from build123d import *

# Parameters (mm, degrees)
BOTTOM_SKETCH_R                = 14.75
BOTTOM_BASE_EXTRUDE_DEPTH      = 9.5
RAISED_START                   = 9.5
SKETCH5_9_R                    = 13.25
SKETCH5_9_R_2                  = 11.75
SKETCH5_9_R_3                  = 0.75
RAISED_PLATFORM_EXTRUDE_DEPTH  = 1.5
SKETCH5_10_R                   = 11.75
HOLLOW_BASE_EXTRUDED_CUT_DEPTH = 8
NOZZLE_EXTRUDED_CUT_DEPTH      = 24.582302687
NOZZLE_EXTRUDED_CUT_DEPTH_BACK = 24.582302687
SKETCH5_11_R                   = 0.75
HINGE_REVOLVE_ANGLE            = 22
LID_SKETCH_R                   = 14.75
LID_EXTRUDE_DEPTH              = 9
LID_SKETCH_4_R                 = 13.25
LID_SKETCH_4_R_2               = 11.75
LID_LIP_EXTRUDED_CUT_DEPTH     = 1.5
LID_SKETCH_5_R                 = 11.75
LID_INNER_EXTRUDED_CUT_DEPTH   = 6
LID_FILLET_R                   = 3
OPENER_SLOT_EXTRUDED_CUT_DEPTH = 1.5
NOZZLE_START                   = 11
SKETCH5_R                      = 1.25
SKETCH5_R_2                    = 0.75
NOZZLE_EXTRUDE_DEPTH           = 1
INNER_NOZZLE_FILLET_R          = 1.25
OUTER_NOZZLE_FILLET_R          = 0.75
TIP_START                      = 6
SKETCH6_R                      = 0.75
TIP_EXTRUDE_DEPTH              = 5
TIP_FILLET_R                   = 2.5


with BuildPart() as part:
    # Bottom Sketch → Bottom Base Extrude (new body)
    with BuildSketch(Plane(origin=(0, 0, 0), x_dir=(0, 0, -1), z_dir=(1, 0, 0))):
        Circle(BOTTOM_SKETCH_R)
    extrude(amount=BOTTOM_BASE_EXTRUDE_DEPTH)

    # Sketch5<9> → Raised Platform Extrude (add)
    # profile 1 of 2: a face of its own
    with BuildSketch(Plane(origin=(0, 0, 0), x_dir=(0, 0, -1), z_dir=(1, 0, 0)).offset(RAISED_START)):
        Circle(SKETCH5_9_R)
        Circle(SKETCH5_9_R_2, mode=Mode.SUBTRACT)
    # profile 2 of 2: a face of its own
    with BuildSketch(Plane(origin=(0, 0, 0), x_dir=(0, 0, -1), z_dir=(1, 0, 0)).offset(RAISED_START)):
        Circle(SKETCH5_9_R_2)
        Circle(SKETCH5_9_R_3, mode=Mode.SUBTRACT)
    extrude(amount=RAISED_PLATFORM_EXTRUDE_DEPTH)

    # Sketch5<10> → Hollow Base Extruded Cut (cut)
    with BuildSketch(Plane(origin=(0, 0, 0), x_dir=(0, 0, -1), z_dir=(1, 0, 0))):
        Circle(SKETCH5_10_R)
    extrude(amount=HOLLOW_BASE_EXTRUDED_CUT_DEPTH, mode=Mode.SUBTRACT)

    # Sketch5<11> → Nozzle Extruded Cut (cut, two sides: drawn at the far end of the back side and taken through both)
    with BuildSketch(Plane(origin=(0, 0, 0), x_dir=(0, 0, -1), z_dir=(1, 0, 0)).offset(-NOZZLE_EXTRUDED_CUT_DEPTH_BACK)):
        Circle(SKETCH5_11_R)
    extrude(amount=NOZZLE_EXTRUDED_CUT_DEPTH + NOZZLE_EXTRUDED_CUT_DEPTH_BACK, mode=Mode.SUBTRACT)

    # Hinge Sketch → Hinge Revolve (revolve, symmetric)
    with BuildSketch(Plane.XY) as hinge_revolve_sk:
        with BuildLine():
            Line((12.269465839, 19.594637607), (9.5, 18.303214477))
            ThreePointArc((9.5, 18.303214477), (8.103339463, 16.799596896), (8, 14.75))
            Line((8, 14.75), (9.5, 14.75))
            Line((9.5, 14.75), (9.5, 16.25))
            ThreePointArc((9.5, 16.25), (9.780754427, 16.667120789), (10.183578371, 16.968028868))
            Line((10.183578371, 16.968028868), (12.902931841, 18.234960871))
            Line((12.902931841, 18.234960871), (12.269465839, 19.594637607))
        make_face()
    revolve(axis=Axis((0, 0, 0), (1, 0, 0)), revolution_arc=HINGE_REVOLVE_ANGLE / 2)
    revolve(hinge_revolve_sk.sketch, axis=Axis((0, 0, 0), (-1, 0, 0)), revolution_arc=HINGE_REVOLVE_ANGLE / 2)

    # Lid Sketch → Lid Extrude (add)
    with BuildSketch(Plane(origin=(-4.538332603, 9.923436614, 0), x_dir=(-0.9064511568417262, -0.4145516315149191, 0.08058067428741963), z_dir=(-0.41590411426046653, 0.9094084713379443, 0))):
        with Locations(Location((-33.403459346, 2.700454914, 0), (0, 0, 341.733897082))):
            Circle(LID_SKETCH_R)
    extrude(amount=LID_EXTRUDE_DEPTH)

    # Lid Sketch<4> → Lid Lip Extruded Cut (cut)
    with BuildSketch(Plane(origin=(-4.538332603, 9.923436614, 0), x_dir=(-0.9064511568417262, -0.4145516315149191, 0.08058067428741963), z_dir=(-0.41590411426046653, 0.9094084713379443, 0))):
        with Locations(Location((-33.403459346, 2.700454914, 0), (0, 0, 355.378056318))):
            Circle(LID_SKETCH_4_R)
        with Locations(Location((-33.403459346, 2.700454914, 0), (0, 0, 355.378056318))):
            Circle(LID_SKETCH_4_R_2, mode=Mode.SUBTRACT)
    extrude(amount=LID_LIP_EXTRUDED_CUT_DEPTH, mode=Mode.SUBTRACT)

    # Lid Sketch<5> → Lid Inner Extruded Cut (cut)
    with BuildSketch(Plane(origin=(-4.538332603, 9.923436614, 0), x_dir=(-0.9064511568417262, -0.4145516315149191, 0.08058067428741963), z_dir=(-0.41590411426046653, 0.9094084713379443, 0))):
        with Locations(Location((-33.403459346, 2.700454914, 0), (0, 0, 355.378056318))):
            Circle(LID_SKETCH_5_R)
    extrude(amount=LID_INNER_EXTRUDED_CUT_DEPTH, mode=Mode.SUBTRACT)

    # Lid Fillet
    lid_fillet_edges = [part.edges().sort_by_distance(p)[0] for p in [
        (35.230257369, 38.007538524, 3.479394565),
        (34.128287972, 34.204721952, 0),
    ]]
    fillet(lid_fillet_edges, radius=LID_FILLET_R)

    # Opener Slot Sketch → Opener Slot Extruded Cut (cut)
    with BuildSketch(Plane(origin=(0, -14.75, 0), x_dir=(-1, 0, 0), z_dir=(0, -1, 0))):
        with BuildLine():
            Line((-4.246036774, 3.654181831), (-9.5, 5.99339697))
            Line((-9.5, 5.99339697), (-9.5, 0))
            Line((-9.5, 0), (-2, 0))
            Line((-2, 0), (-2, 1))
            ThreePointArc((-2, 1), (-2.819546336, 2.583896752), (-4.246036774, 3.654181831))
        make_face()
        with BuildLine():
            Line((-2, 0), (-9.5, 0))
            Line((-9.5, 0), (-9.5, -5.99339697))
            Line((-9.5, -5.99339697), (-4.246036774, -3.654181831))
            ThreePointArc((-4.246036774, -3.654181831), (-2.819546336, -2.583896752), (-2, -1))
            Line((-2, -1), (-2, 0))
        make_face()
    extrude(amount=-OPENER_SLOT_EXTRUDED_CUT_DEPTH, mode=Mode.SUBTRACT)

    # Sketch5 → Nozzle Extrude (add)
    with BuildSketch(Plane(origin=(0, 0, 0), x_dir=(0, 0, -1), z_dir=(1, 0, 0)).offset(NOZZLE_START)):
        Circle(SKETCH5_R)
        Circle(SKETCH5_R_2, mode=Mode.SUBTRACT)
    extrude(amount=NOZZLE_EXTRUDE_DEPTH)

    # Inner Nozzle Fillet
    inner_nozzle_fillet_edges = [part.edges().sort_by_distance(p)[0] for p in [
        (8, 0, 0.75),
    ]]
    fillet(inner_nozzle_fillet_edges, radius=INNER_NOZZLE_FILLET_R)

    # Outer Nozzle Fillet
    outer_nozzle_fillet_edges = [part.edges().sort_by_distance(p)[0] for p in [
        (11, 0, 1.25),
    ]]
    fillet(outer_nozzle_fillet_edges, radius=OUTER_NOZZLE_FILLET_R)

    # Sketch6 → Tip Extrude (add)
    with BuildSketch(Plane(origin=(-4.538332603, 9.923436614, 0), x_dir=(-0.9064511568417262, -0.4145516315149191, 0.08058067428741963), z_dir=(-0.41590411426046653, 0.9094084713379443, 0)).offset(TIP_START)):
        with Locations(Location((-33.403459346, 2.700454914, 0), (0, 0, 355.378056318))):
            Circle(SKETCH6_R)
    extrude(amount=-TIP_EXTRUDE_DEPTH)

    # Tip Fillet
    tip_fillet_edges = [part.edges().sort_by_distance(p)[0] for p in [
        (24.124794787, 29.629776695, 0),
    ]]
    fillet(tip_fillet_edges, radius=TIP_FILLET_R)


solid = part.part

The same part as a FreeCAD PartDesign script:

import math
import FreeCAD as App
import Part
import Sketcher
Q = App.Units.Quantity


def edges_at(feature, points):
    """Names of the edges that pass closest to the given points."""
    edges = feature.Shape.Edges
    near = lambda p: min(range(len(edges)), key=lambda i: edges[i].distToShape(Part.Vertex(*p))[0])
    return sorted({f"Edge{near(p) + 1}" for p in points})

doc = App.newDocument("Part")
params = doc.addObject("Spreadsheet::Sheet", "Params")
for row, (alias, value) in enumerate([
    ("sketch1_diameter", "29.5 mm"),
    ("pad1_length", "9.5 mm"),
    ("sketch2_diameter", "26.5 mm"),
    ("sketch2_diameter2", "1.5 mm"),
    ("pad2_length", "1.5 mm"),
    ("sketch3_diameter", "23.5 mm"),
    ("pocket1_length", "8 mm"),
    ("sketch4_diameter", "1.5 mm"),
    ("sketch5_radius", "3 mm"),
    ("sketch5_radius2", "1.5 mm"),
    ("sketch5_length", "3 mm"),
    ("sketch5_width", "1.5 mm"),
    ("sketch5_length2", "1.5 mm"),
    ("revolution_angle", "11 deg"),
    ("sketch6_radius", "3 mm"),
    ("sketch6_radius2", "1.5 mm"),
    ("sketch6_length", "3 mm"),
    ("sketch6_width", "1.5 mm"),
    ("sketch6_length2", "1.5 mm"),
    ("revolution2_angle", "11 deg"),
    ("sketch7_diameter", "29.5 mm"),
    ("pad3_length", "9 mm"),
    ("sketch8_diameter", "26.5 mm"),
    ("sketch8_diameter2", "23.5 mm"),
    ("pocket3_length", "1.5 mm"),
    ("sketch9_diameter", "23.5 mm"),
    ("pocket4_length", "6 mm"),
    ("fillet_radius", "3 mm"),
    ("sketch10_radius", "4 mm"),
    ("sketch10_height", "2 mm"),
    ("pocket5_length", "1.5 mm"),
    ("sketch11_diameter", "2.5 mm"),
    ("sketch11_diameter2", "1.5 mm"),
    ("pad4_length", "1 mm"),
    ("fillet2_radius", "1.25 mm"),
    ("fillet3_radius", "0.75 mm"),
    ("sketch12_diameter", "1.5 mm"),
    ("pad5_length", "5 mm"),
    ("fillet4_radius", "2.5 mm"),
], start=1):
    params.set(f"A{row}", alias)
    params.set(f"B{row}", "=" + value)
    params.setAlias(f"B{row}", alias)

body = doc.addObject("PartDesign::Body", "Body")

sketch1 = body.newObject("Sketcher::SketchObject", "Sketch")
sketch1.AttachmentSupport = (doc.getObject("YZ_Plane"), [""])
sketch1.MapMode = "FlatFace"
sketch1.addGeometry(Part.Circle(App.Vector(0, 0, 0), App.Vector(0, 0, 1), 14.75), False)
sketch1.addConstraint(Sketcher.Constraint("Coincident", 0, 3, -1, 1))
sketch1.addConstraint(Sketcher.Constraint("Diameter", 0, Q("29.5 mm")))
sketch1.setExpression("Constraints[1]", "Params.sketch1_diameter")
pad1 = body.newObject("PartDesign::Pad", "Pad")
pad1.Profile = sketch1
pad1.setExpression("Length", "Params.pad1_length")

sketch2 = body.newObject("Sketcher::SketchObject", "Sketch001")
sketch2.AttachmentSupport = (doc.getObject("YZ_Plane"), [""])
sketch2.MapMode = "FlatFace"
sketch2.AttachmentOffset = App.Placement(App.Vector(0, 0, 9.5), App.Rotation())
sketch2.addGeometry(Part.Circle(App.Vector(0, 0, 0), App.Vector(0, 0, 1), 13.25), False)
sketch2.addGeometry(Part.Circle(App.Vector(0, 0, 0), App.Vector(0, 0, 1), 0.75), False)
sketch2.addConstraint(Sketcher.Constraint("Coincident", 0, 3, -1, 1))
sketch2.addConstraint(Sketcher.Constraint("Coincident", 1, 3, -1, 1))
sketch2.addConstraint(Sketcher.Constraint("Diameter", 0, Q("26.5 mm")))
sketch2.addConstraint(Sketcher.Constraint("Diameter", 1, Q("1.5 mm")))
sketch2.setExpression("Constraints[2]", "Params.sketch2_diameter")
sketch2.setExpression("Constraints[3]", "Params.sketch2_diameter2")
pad2 = body.newObject("PartDesign::Pad", "Pad001")
pad2.Profile = sketch2
pad2.setExpression("Length", "Params.pad2_length")

sketch3 = body.newObject("Sketcher::SketchObject", "Sketch002")
sketch3.AttachmentSupport = (doc.getObject("YZ_Plane"), [""])
sketch3.MapMode = "FlatFace"
sketch3.addGeometry(Part.Circle(App.Vector(0, 0, 0), App.Vector(0, 0, 1), 11.75), False)
sketch3.addConstraint(Sketcher.Constraint("Coincident", 0, 3, -1, 1))
sketch3.addConstraint(Sketcher.Constraint("Diameter", 0, Q("23.5 mm")))
sketch3.setExpression("Constraints[1]", "Params.sketch3_diameter")
pocket1 = body.newObject("PartDesign::Pocket", "Pocket")
pocket1.Profile = sketch3
pocket1.setExpression("Length", "Params.pocket1_length")
pocket1.Reversed = True

sketch4 = body.newObject("Sketcher::SketchObject", "Sketch003")
sketch4.AttachmentSupport = (doc.getObject("YZ_Plane"), [""])
sketch4.MapMode = "FlatFace"
sketch4.addGeometry(Part.Circle(App.Vector(0, 0, 0), App.Vector(0, 0, 1), 0.75), False)
sketch4.addConstraint(Sketcher.Constraint("Coincident", 0, 3, -1, 1))
sketch4.addConstraint(Sketcher.Constraint("Diameter", 0, Q("1.5 mm")))
sketch4.setExpression("Constraints[1]", "Params.sketch4_diameter")
pocket2 = body.newObject("PartDesign::Pocket", "Pocket001")
pocket2.Profile = sketch4
pocket2.Type = "ThroughAll"
pocket2.Midplane = True

sketch5 = body.newObject("Sketcher::SketchObject", "Sketch004")
sketch5.AttachmentSupport = (doc.getObject("XY_Plane"), [""])
sketch5.MapMode = "FlatFace"
sketch5.addGeometry(Part.LineSegment(App.Vector(12.269466, 19.594638, 0), App.Vector(9.5, 18.303214, 0)), False)
sketch5.addGeometry(Part.ArcOfCircle(Part.Circle(App.Vector(10.867157, 15.632843, 0), App.Vector(0, 0, 1), 3), math.radians(117.1112), math.radians(197.114433)), False)
sketch5.addGeometry(Part.LineSegment(App.Vector(8, 14.75, 0), App.Vector(9.5, 14.75, 0)), False)
sketch5.addGeometry(Part.LineSegment(App.Vector(9.5, 14.75, 0), App.Vector(9.5, 16.25, 0)), False)
sketch5.addGeometry(Part.ArcOfCircle(Part.Circle(App.Vector(10.867157, 15.632843, 0), App.Vector(0, 0, 1), 1.5), math.radians(117.1112), math.radians(155.704811)), False)
sketch5.addGeometry(Part.LineSegment(App.Vector(10.183578, 16.968029, 0), App.Vector(12.902932, 18.234961, 0)), False)
sketch5.addGeometry(Part.LineSegment(App.Vector(12.902932, 18.234961, 0), App.Vector(12.269466, 19.594638, 0)), False)
sketch5.addConstraint(Sketcher.Constraint("Coincident", 0, 2, 1, 1))
sketch5.addConstraint(Sketcher.Constraint("Coincident", 1, 2, 2, 1))
sketch5.addConstraint(Sketcher.Constraint("Coincident", 2, 2, 3, 1))
sketch5.addConstraint(Sketcher.Constraint("Coincident", 3, 2, 4, 2))
sketch5.addConstraint(Sketcher.Constraint("Coincident", 4, 1, 5, 1))
sketch5.addConstraint(Sketcher.Constraint("Coincident", 5, 2, 6, 1))
sketch5.addConstraint(Sketcher.Constraint("Coincident", 6, 2, 0, 1))
sketch5.addConstraint(Sketcher.Constraint("Horizontal", 2))
sketch5.addConstraint(Sketcher.Constraint("Vertical", 3))
sketch5.addConstraint(Sketcher.Constraint("Coincident", 4, 3, 1, 3))
sketch5.addConstraint(Sketcher.Constraint("Perpendicular", 5, 6))
sketch5.addConstraint(Sketcher.Constraint("Vertical", 0, 2, 2, 2))
sketch5.addConstraint(Sketcher.Constraint("Equal", 2, 3))
sketch5.addConstraint(Sketcher.Constraint("Radius", 1, Q("3 mm")))
sketch5.addConstraint(Sketcher.Constraint("Radius", 4, Q("1.5 mm")))
sketch5.addConstraint(Sketcher.Constraint("Angle", 0, Q("-155 deg")))
sketch5.addConstraint(Sketcher.Constraint("Distance", 5, Q("3 mm")))
sketch5.addConstraint(Sketcher.Constraint("DistanceX", 2, 1, 2, 2, Q("1.5 mm")))
sketch5.addConstraint(Sketcher.Constraint("DistanceX", -1, 1, 1, 2, Q("8 mm")))
sketch5.addConstraint(Sketcher.Constraint("Distance", 6, Q("1.5 mm")))
sketch5.addConstraint(Sketcher.Constraint("DistanceY", -1, 1, 1, 2, Q("14.75 mm")))
sketch5.addConstraint(Sketcher.Constraint("DistanceX", -1, 1, 4, 1, Q("10.183578 mm")))
sketch5.setExpression("Constraints[13]", "Params.sketch5_radius")
sketch5.setExpression("Constraints[14]", "Params.sketch5_radius2")
sketch5.setExpression("Constraints[16]", "Params.sketch5_length")
sketch5.setExpression("Constraints[17]", "Params.sketch5_width")
sketch5.setExpression("Constraints[19]", "Params.sketch5_length2")
revolution = body.newObject("PartDesign::Revolution", "Revolution")
revolution.Profile = sketch5
revolution.ReferenceAxis = (sketch5, ["H_Axis"])
revolution.setExpression("Angle", "Params.revolution_angle")

sketch6 = body.newObject("Sketcher::SketchObject", "Sketch005")
sketch6.AttachmentSupport = (doc.getObject("XY_Plane"), [""])
sketch6.MapMode = "FlatFace"
sketch6.addGeometry(Part.LineSegment(App.Vector(12.269466, 19.594638, 0), App.Vector(9.5, 18.303214, 0)), False)
sketch6.addGeometry(Part.ArcOfCircle(Part.Circle(App.Vector(10.867157, 15.632843, 0), App.Vector(0, 0, 1), 3), math.radians(117.1112), math.radians(197.114433)), False)
sketch6.addGeometry(Part.LineSegment(App.Vector(8, 14.75, 0), App.Vector(9.5, 14.75, 0)), False)
sketch6.addGeometry(Part.LineSegment(App.Vector(9.5, 14.75, 0), App.Vector(9.5, 16.25, 0)), False)
sketch6.addGeometry(Part.ArcOfCircle(Part.Circle(App.Vector(10.867157, 15.632843, 0), App.Vector(0, 0, 1), 1.5), math.radians(117.1112), math.radians(155.704811)), False)
sketch6.addGeometry(Part.LineSegment(App.Vector(10.183578, 16.968029, 0), App.Vector(12.902932, 18.234961, 0)), False)
sketch6.addGeometry(Part.LineSegment(App.Vector(12.902932, 18.234961, 0), App.Vector(12.269466, 19.594638, 0)), False)
sketch6.addConstraint(Sketcher.Constraint("Coincident", 0, 2, 1, 1))
sketch6.addConstraint(Sketcher.Constraint("Coincident", 1, 2, 2, 1))
sketch6.addConstraint(Sketcher.Constraint("Coincident", 2, 2, 3, 1))
sketch6.addConstraint(Sketcher.Constraint("Coincident", 3, 2, 4, 2))
sketch6.addConstraint(Sketcher.Constraint("Coincident", 4, 1, 5, 1))
sketch6.addConstraint(Sketcher.Constraint("Coincident", 5, 2, 6, 1))
sketch6.addConstraint(Sketcher.Constraint("Coincident", 6, 2, 0, 1))
sketch6.addConstraint(Sketcher.Constraint("Horizontal", 2))
sketch6.addConstraint(Sketcher.Constraint("Vertical", 3))
sketch6.addConstraint(Sketcher.Constraint("Coincident", 4, 3, 1, 3))
sketch6.addConstraint(Sketcher.Constraint("Perpendicular", 5, 6))
sketch6.addConstraint(Sketcher.Constraint("Vertical", 0, 2, 2, 2))
sketch6.addConstraint(Sketcher.Constraint("Equal", 2, 3))
sketch6.addConstraint(Sketcher.Constraint("Radius", 1, Q("3 mm")))
sketch6.addConstraint(Sketcher.Constraint("Radius", 4, Q("1.5 mm")))
sketch6.addConstraint(Sketcher.Constraint("Angle", 0, Q("-155 deg")))
sketch6.addConstraint(Sketcher.Constraint("Distance", 5, Q("3 mm")))
sketch6.addConstraint(Sketcher.Constraint("DistanceX", 2, 1, 2, 2, Q("1.5 mm")))
sketch6.addConstraint(Sketcher.Constraint("DistanceX", -1, 1, 1, 2, Q("8 mm")))
sketch6.addConstraint(Sketcher.Constraint("Distance", 6, Q("1.5 mm")))
sketch6.addConstraint(Sketcher.Constraint("DistanceY", -1, 1, 1, 2, Q("14.75 mm")))
sketch6.addConstraint(Sketcher.Constraint("DistanceX", -1, 1, 4, 1, Q("10.183578 mm")))
sketch6.setExpression("Constraints[13]", "Params.sketch6_radius")
sketch6.setExpression("Constraints[14]", "Params.sketch6_radius2")
sketch6.setExpression("Constraints[16]", "Params.sketch6_length")
sketch6.setExpression("Constraints[17]", "Params.sketch6_width")
sketch6.setExpression("Constraints[19]", "Params.sketch6_length2")
revolution2 = body.newObject("PartDesign::Revolution", "Revolution001")
revolution2.Profile = sketch6
revolution2.ReferenceAxis = (sketch6, ["H_Axis"])
revolution2.setExpression("Angle", "Params.revolution2_angle")
revolution2.Reversed = True

sketch7 = body.newObject("Sketcher::SketchObject", "Sketch006")
sketch7.Placement = App.Placement(App.Vector(-4.538333, 9.923437, 0), App.Rotation(App.Vector(-0.906451157, -0.414551632, 0.080580674), App.Vector(0.073280748, 0.033513834, 0.99674809), App.Vector(-0.415904114, 0.909408471, 0), "ZXY"))
sketch7.addGeometry(Part.Circle(App.Vector(-33.403459, 2.700455, 0), App.Vector(0, 0, 1), 14.75), False)
sketch7.addConstraint(Sketcher.Constraint("Diameter", 0, Q("29.5 mm")))
sketch7.addConstraint(Sketcher.Constraint("DistanceX", 0, 3, -1, 1, Q("33.403459 mm")))
sketch7.addConstraint(Sketcher.Constraint("DistanceY", -1, 1, 0, 3, Q("2.700455 mm")))
sketch7.setExpression("Constraints[0]", "Params.sketch7_diameter")
pad3 = body.newObject("PartDesign::Pad", "Pad002")
pad3.Profile = sketch7
pad3.setExpression("Length", "Params.pad3_length")

sketch8 = body.newObject("Sketcher::SketchObject", "Sketch007")
sketch8.Placement = App.Placement(App.Vector(-4.538333, 9.923437, 0), App.Rotation(App.Vector(-0.906451157, -0.414551632, 0.080580674), App.Vector(0.073280748, 0.033513834, 0.99674809), App.Vector(-0.415904114, 0.909408471, 0), "ZXY"))
sketch8.addGeometry(Part.Circle(App.Vector(-33.403459, 2.700455, 0), App.Vector(0, 0, 1), 13.25), False)
sketch8.addGeometry(Part.Circle(App.Vector(-33.403459, 2.700455, 0), App.Vector(0, 0, 1), 11.75), False)
sketch8.addConstraint(Sketcher.Constraint("Coincident", 1, 3, 0, 3))
sketch8.addConstraint(Sketcher.Constraint("Diameter", 0, Q("26.5 mm")))
sketch8.addConstraint(Sketcher.Constraint("Diameter", 1, Q("23.5 mm")))
sketch8.addConstraint(Sketcher.Constraint("DistanceX", 0, 3, -1, 1, Q("33.403459 mm")))
sketch8.addConstraint(Sketcher.Constraint("DistanceY", -1, 1, 0, 3, Q("2.700455 mm")))
sketch8.setExpression("Constraints[1]", "Params.sketch8_diameter")
sketch8.setExpression("Constraints[2]", "Params.sketch8_diameter2")
pocket3 = body.newObject("PartDesign::Pocket", "Pocket002")
pocket3.Profile = sketch8
pocket3.setExpression("Length", "Params.pocket3_length")
pocket3.Reversed = True

sketch9 = body.newObject("Sketcher::SketchObject", "Sketch008")
sketch9.Placement = App.Placement(App.Vector(-4.538333, 9.923437, 0), App.Rotation(App.Vector(-0.906451157, -0.414551632, 0.080580674), App.Vector(0.073280748, 0.033513834, 0.99674809), App.Vector(-0.415904114, 0.909408471, 0), "ZXY"))
sketch9.addGeometry(Part.Circle(App.Vector(-33.403459, 2.700455, 0), App.Vector(0, 0, 1), 11.75), False)
sketch9.addConstraint(Sketcher.Constraint("Diameter", 0, Q("23.5 mm")))
sketch9.addConstraint(Sketcher.Constraint("DistanceX", 0, 3, -1, 1, Q("33.403459 mm")))
sketch9.addConstraint(Sketcher.Constraint("DistanceY", -1, 1, 0, 3, Q("2.700455 mm")))
sketch9.setExpression("Constraints[0]", "Params.sketch9_diameter")
pocket4 = body.newObject("PartDesign::Pocket", "Pocket003")
pocket4.Profile = sketch9
pocket4.setExpression("Length", "Params.pocket4_length")
pocket4.Reversed = True
doc.recompute()

fillet = body.newObject("PartDesign::Fillet", "Fillet")
fillet.Base = (pocket4, edges_at(pocket4, [(35.23, 38.008, 3.479), (34.128, 34.205, 0)]))
fillet.setExpression("Radius", "Params.fillet_radius")

sketch10 = body.newObject("Sketcher::SketchObject", "Sketch009")
sketch10.AttachmentSupport = (doc.getObject("XZ_Plane"), [""])
sketch10.MapMode = "FlatFace"
sketch10.AttachmentOffset = App.Placement(App.Vector(0, 0, 14.75), App.Rotation())
sketch10.addGeometry(Part.LineSegment(App.Vector(4.246037, -3.654182, 0), App.Vector(9.5, -5.993397, 0)), False)
sketch10.addGeometry(Part.LineSegment(App.Vector(9.5, -5.993397, 0), App.Vector(9.5, 5.993397, 0)), False)
sketch10.addGeometry(Part.LineSegment(App.Vector(9.5, 5.993397, 0), App.Vector(4.246037, 3.654182, 0)), False)
sketch10.addGeometry(Part.ArcOfCircle(Part.Circle(App.Vector(5.872983, 0, 0), App.Vector(0, 0, 1), 4), math.radians(114), math.radians(165.522488)), False)
sketch10.addGeometry(Part.LineSegment(App.Vector(2, 1, 0), App.Vector(2, -1, 0)), False)
sketch10.addGeometry(Part.ArcOfCircle(Part.Circle(App.Vector(5.872983, 0, 0), App.Vector(0, 0, 1), 4), math.radians(-165.522488), math.radians(-114)), False)
sketch10.addConstraint(Sketcher.Constraint("Coincident", 0, 2, 1, 1))
sketch10.addConstraint(Sketcher.Constraint("Coincident", 1, 2, 2, 1))
sketch10.addConstraint(Sketcher.Constraint("Tangent", 2, 2, 3, 1))
sketch10.addConstraint(Sketcher.Constraint("Coincident", 3, 2, 4, 1))
sketch10.addConstraint(Sketcher.Constraint("Coincident", 4, 2, 5, 1))
sketch10.addConstraint(Sketcher.Constraint("Tangent", 5, 2, 0, 1))
sketch10.addConstraint(Sketcher.Constraint("Vertical", 1))
sketch10.addConstraint(Sketcher.Constraint("Vertical", 4))
sketch10.addConstraint(Sketcher.Constraint("Coincident", 5, 3, 3, 3))
sketch10.addConstraint(Sketcher.Constraint("Equal", 3, 5))
sketch10.addConstraint(Sketcher.Constraint("Symmetric", 2, 2, 5, 2, -1))
sketch10.addConstraint(Sketcher.Constraint("Radius", 3, Q("4 mm")))
sketch10.addConstraint(Sketcher.Constraint("DistanceY", 4, 2, 4, 1, Q("2 mm")))
sketch10.addConstraint(Sketcher.Constraint("Angle", 0, Q("-24 deg")))
sketch10.addConstraint(Sketcher.Constraint("DistanceX", -1, 1, 3, 2, Q("2 mm")))
sketch10.addConstraint(Sketcher.Constraint("DistanceX", -1, 1, 0, 2, Q("9.5 mm")))
sketch10.setExpression("Constraints[11]", "Params.sketch10_radius")
sketch10.setExpression("Constraints[12]", "Params.sketch10_height")
pocket5 = body.newObject("PartDesign::Pocket", "Pocket004")
pocket5.Profile = sketch10
pocket5.setExpression("Length", "Params.pocket5_length")

sketch11 = body.newObject("Sketcher::SketchObject", "Sketch010")
sketch11.AttachmentSupport = (doc.getObject("YZ_Plane"), [""])
sketch11.MapMode = "FlatFace"
sketch11.AttachmentOffset = App.Placement(App.Vector(0, 0, 11), App.Rotation())
sketch11.addGeometry(Part.Circle(App.Vector(0, 0, 0), App.Vector(0, 0, 1), 1.25), False)
sketch11.addGeometry(Part.Circle(App.Vector(0, 0, 0), App.Vector(0, 0, 1), 0.75), False)
sketch11.addConstraint(Sketcher.Constraint("Coincident", 0, 3, -1, 1))
sketch11.addConstraint(Sketcher.Constraint("Coincident", 1, 3, -1, 1))
sketch11.addConstraint(Sketcher.Constraint("Diameter", 0, Q("2.5 mm")))
sketch11.addConstraint(Sketcher.Constraint("Diameter", 1, Q("1.5 mm")))
sketch11.setExpression("Constraints[2]", "Params.sketch11_diameter")
sketch11.setExpression("Constraints[3]", "Params.sketch11_diameter2")
pad4 = body.newObject("PartDesign::Pad", "Pad003")
pad4.Profile = sketch11
pad4.setExpression("Length", "Params.pad4_length")
doc.recompute()

fillet2 = body.newObject("PartDesign::Fillet", "Fillet001")
fillet2.Base = (pad4, edges_at(pad4, [(8, 0, 0.75)]))
fillet2.setExpression("Radius", "Params.fillet2_radius")
doc.recompute()

fillet3 = body.newObject("PartDesign::Fillet", "Fillet002")
fillet3.Base = (fillet2, edges_at(fillet2, [(11, 0, 1.25)]))
fillet3.setExpression("Radius", "Params.fillet3_radius")

sketch12 = body.newObject("Sketcher::SketchObject", "Sketch011")
sketch12.Placement = App.Placement(App.Vector(-7.033757, 15.379887, 0), App.Rotation(App.Vector(-0.906451157, -0.414551632, 0.080580674), App.Vector(0.073280748, 0.033513834, 0.99674809), App.Vector(-0.415904114, 0.909408471, 0), "ZXY"))
sketch12.addGeometry(Part.Circle(App.Vector(-33.403459, 2.700455, 0), App.Vector(0, 0, 1), 0.75), False)
sketch12.addConstraint(Sketcher.Constraint("Diameter", 0, Q("1.5 mm")))
sketch12.addConstraint(Sketcher.Constraint("DistanceX", 0, 3, -1, 1, Q("33.403459 mm")))
sketch12.addConstraint(Sketcher.Constraint("DistanceY", -1, 1, 0, 3, Q("2.700455 mm")))
sketch12.setExpression("Constraints[0]", "Params.sketch12_diameter")
pad5 = body.newObject("PartDesign::Pad", "Pad004")
pad5.Profile = sketch12
pad5.setExpression("Length", "Params.pad5_length")
pad5.Reversed = True
doc.recompute()

fillet4 = body.newObject("PartDesign::Fillet", "Fillet003")
fillet4.Base = (pad5, edges_at(pad5, [(24.125, 29.63, 0)]))
fillet4.setExpression("Radius", "Params.fillet4_radius")

doc.recompute()
